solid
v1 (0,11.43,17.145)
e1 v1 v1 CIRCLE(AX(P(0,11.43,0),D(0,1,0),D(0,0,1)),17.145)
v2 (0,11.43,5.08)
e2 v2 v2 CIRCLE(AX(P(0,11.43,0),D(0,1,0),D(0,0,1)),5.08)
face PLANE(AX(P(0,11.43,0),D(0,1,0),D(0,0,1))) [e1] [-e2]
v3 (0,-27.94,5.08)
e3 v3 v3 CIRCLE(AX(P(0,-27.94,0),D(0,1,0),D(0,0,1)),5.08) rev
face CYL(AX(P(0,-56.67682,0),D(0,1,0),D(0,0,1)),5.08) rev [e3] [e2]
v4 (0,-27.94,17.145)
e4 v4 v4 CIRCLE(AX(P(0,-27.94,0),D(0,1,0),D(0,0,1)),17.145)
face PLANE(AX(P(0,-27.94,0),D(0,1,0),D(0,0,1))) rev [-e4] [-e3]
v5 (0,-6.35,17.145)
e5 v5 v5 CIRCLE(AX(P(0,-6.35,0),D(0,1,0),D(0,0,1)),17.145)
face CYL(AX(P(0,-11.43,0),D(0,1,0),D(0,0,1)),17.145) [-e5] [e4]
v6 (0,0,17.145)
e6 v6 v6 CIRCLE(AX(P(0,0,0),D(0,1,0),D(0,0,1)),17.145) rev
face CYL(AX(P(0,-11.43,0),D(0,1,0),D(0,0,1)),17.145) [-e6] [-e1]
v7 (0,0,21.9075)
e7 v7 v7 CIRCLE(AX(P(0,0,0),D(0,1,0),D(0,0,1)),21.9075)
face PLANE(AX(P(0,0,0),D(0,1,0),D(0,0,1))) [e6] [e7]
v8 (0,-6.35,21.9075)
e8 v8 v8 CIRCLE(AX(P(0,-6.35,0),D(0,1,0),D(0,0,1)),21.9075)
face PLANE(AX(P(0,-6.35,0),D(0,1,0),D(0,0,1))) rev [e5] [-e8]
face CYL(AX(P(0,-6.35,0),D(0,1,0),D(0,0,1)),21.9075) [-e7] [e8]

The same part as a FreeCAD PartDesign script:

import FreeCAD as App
import Part
import Sketcher

V = App.Vector
Q = App.Units.Quantity

doc = App.newDocument("Part")
params = doc.addObject("Spreadsheet::Sheet", "Params")
for row, (alias, value) in enumerate([
    ("sketch1_diameter", "1.35 in"),
    ("pad1_length", "0.45 in"),
    ("pad1_length2", "0.45 in"),
    ("sketch2_diameter", "1.35 in"),
    ("sketch2_diameter2", "1.725 in"),
    ("pad2_length", "0.25 in"),
    ("sketch3_diameter", "1.35 in"),
    ("pad3_length", "1.1 in"),
    ("sketch4_diameter", "0.8 in"),
    ("sketch5_diameter", "0.8 in"),
    ("sketch5_diameter2", "0.4 in"),
    ("pad4_length", "1.55 in"),
], start=1):
    params.set(f"A{row}", alias)
    params.set(f"B{row}", "=" + value)
    params.setAlias(f"B{row}", alias)

body = doc.addObject("PartDesign::Body", "Body")

# Sketch on XZ plane
sketch1 = body.newObject("Sketcher::SketchObject", "Sketch")
sketch1.AttachmentSupport = (doc.getObject("XZ_Plane"), [""])
sketch1.MapMode = "FlatFace"
sketch1.addGeometry(Part.Circle(V(0, 0, 0), V(0, 0, 1), 17), False)
sketch1.addConstraint([
    Sketcher.Constraint("Coincident", 0, 3, -1, 1),
    Sketcher.Constraint("Diameter", 0, Q("1.35 in")),
])
sketch1.setExpression("Constraints[1]", "Params.sketch1_diameter")
pad1 = body.newObject("PartDesign::Pad", "Pad")
pad1.Profile = sketch1
pad1.Type = "TwoLengths"
pad1.setExpression("Length", "Params.pad1_length")
pad1.setExpression("Length2", "Params.pad1_length2")
pad1.Reversed = True
body2 = doc.addObject("PartDesign::Body", "Body001")

# Sketch on XZ plane
sketch2 = body2.newObject("Sketcher::SketchObject", "Sketch001")
sketch2.AttachmentSupport = (doc.getObject("XZ_Plane001"), [""])
sketch2.MapMode = "FlatFace"
sketch2.addGeometry([
    Part.Circle(V(0, 0, 0), V(0, 0, 1), 22),
    Part.Circle(V(0, 0, 0), V(0, 0, 1), 17),
], False)
sketch2.addConstraint([
    Sketcher.Constraint("Coincident", 0, 3, -1, 1),
    Sketcher.Constraint("Coincident", 1, 3, -1, 1),
    Sketcher.Constraint("Diameter", 1, Q("1.35 in")),
    Sketcher.Constraint("Diameter", 0, Q("1.725 in")),
])
sketch2.setExpression("Constraints[2]", "Params.sketch2_diameter")
sketch2.setExpression("Constraints[3]", "Params.sketch2_diameter2")
pad2 = body2.newObject("PartDesign::Pad", "Pad001")
pad2.Profile = sketch2
pad2.setExpression("Length", "Params.pad2_length")
doc.recompute()

boolean = body.newObject("PartDesign::Boolean", "Boolean")
boolean.Type = "Fuse"
boolean.addObjects([body2])

# Sketch on XZ plane
sketch3 = body.newObject("Sketcher::SketchObject", "Sketch002")
sketch3.AttachmentSupport = (doc.getObject("XZ_Plane"), [""])
sketch3.MapMode = "FlatFace"
sketch3.addGeometry(Part.Circle(V(0, 0, 0), V(0, 0, 1), 17), False)
sketch3.addConstraint([
    Sketcher.Constraint("Coincident", 0, 3, -1, 1),
    Sketcher.Constraint("Diameter", 0, Q("1.35 in")),
])
sketch3.setExpression("Constraints[1]", "Params.sketch3_diameter")
pad3 = body.newObject("PartDesign::Pad", "Pad002")
pad3.Profile = sketch3
pad3.setExpression("Length", "Params.pad3_length")

# Sketch on XZ plane
sketch4 = body.newObject("Sketcher::SketchObject", "Sketch003")
sketch4.AttachmentSupport = (doc.getObject("XZ_Plane"), [""])
sketch4.MapMode = "FlatFace"
sketch4.AttachmentOffset = App.Placement(V(0, 0, 1.1 * 25.4), App.Rotation())
sketch4.addGeometry(Part.Circle(V(0, 0, 0), V(0, 0, 1), 10), False)
sketch4.addConstraint([
    Sketcher.Constraint("Coincident", 0, 3, -1, 1),
    Sketcher.Constraint("Diameter", 0, Q("0.8 in")),
])
sketch4.setExpression("Constraints[1]", "Params.sketch4_diameter")
pocket1 = body.newObject("PartDesign::Pocket", "Pocket")
pocket1.Profile = sketch4
pocket1.Type = "ThroughAll"
pocket1.Midplane = True

# Sketch on XZ plane
sketch5 = body.newObject("Sketcher::SketchObject", "Sketch004")
sketch5.AttachmentSupport = (doc.getObject("XZ_Plane"), [""])
sketch5.MapMode = "FlatFace"
sketch5.AttachmentOffset = App.Placement(V(0, 0, 1.1 * 25.4), App.Rotation())
sketch5.addGeometry([
    Part.Circle(V(0, 0, 0), V(0, 0, 1), 10),
    Part.Circle(V(0, 0, 0), V(0, 0, 1), 5),
], False)
sketch5.addConstraint([
    Sketcher.Constraint("Coincident", 0, 3, -1, 1),
    Sketcher.Constraint("Coincident", 1, 3, -1, 1),
    Sketcher.Constraint("Diameter", 0, Q("0.8 in")),
    Sketcher.Constraint("Diameter", 1, Q("0.4 in")),
])
sketch5.setExpression("Constraints[2]", "Params.sketch5_diameter")
sketch5.setExpression("Constraints[3]", "Params.sketch5_diameter2")
pad4 = body.newObject("PartDesign::Pad", "Pad003")
pad4.Profile = sketch5
pad4.setExpression("Length", "Params.pad4_length")
pad4.Reversed = True

doc.recompute()
